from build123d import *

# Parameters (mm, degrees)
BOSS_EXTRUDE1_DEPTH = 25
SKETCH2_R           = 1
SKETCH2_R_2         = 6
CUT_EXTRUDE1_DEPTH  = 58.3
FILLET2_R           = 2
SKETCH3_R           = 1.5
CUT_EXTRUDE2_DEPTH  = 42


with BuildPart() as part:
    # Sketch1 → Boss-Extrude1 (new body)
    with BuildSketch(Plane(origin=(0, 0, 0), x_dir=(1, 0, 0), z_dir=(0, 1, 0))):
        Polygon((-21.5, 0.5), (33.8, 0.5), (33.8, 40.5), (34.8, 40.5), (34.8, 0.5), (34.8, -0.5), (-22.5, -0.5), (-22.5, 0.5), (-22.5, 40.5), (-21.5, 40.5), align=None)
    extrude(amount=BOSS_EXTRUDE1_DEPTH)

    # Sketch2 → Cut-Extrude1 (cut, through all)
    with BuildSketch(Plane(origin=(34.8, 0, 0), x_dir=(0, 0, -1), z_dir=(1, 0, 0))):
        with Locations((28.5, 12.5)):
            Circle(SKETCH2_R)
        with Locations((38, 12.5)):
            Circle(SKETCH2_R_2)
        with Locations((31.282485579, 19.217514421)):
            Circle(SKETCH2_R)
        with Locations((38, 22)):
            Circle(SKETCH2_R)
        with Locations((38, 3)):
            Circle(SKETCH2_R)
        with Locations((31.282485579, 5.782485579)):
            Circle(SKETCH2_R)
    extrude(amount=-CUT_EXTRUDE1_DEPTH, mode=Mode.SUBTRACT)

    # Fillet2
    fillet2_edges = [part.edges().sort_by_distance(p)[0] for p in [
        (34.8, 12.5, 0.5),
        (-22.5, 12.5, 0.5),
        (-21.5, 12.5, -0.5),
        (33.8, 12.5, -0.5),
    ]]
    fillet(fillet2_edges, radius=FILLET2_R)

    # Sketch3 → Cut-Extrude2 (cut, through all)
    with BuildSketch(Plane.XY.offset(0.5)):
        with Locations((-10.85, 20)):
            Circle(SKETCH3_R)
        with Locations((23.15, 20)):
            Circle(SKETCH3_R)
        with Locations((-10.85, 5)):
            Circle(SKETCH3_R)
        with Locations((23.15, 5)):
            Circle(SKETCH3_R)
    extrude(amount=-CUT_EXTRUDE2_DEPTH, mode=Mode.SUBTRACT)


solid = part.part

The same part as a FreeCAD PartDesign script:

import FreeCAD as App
import Part
import Sketcher
Q = App.Units.Quantity


def edges_at(feature, points):
    """Names of the edges that pass closest to the given points."""
    edges = feature.Shape.Edges
    near = lambda p: min(range(len(edges)), key=lambda i: edges[i].distToShape(Part.Vertex(*p))[0])
    return sorted({f"Edge{near(p) + 1}" for p in points})

doc = App.newDocument("Part")
params = doc.addObject("Spreadsheet::Sheet", "Params")
for row, (alias, value) in enumerate([
    ("sketch1_width", "1 mm"),
    ("sketch1_height", "40 mm"),
    ("sketch1_height2", "41 mm"),
    ("sketch1_width2", "55.3 mm"),
    ("pad1_length", "25 mm"),
    ("sketch2_diameter", "2 mm"),
    ("sketch2_diameter2", "12 mm"),
    ("fillet_radius", "2 mm"),
    ("sketch3_diameter", "3 mm"),
], start=1):
    params.set(f"A{row}", alias)
    params.set(f"B{row}", "=" + value)
    params.setAlias(f"B{row}", alias)

body = doc.addObject("PartDesign::Body", "Body")

# Sketch on XZ plane
sketch1 = body.newObject("Sketcher::SketchObject", "Sketch")
sketch1.AttachmentSupport = (doc.getObject("XZ_Plane"), [""])
sketch1.MapMode = "FlatFace"
sketch1.addGeometry(Part.LineSegment(App.Vector(33.8, -0.5, 0), App.Vector(-21.5, -0.5, 0)), False)
sketch1.addGeometry(Part.LineSegment(App.Vector(-21.5, -0.5, 0), App.Vector(-21.5, -40.5, 0)), False)
sketch1.addGeometry(Part.LineSegment(App.Vector(-21.5, -40.5, 0), App.Vector(-22.5, -40.5, 0)), False)
sketch1.addGeometry(Part.LineSegment(App.Vector(-22.5, -40.5, 0), App.Vector(-22.5, 0.5, 0)), False)
sketch1.addGeometry(Part.LineSegment(App.Vector(-22.5, 0.5, 0), App.Vector(34.8, 0.5, 0)), False)
sketch1.addGeometry(Part.LineSegment(App.Vector(34.8, 0.5, 0), App.Vector(34.8, -40.5, 0)), False)
sketch1.addGeometry(Part.LineSegment(App.Vector(34.8, -40.5, 0), App.Vector(33.8, -40.5, 0)), False)
sketch1.addGeometry(Part.LineSegment(App.Vector(33.8, -40.5, 0), App.Vector(33.8, -0.5, 0)), False)
sketch1.addConstraint(Sketcher.Constraint("Coincident", 0, 2, 1, 1))
sketch1.addConstraint(Sketcher.Constraint("Coincident", 1, 2, 2, 1))
sketch1.addConstraint(Sketcher.Constraint("Coincident", 2, 2, 3, 1))
sketch1.addConstraint(Sketcher.Constraint("Coincident", 3, 2, 4, 1))
sketch1.addConstraint(Sketcher.Constraint("Coincident", 4, 2, 5, 1))
sketch1.addConstraint(Sketcher.Constraint("Coincident", 5, 2, 6, 1))
sketch1.addConstraint(Sketcher.Constraint("Coincident", 6, 2, 7, 1))
sketch1.addConstraint(Sketcher.Constraint("Coincident", 7, 2, 0, 1))
sketch1.addConstraint(Sketcher.Constraint("Horizontal", 0))
sketch1.addConstraint(Sketcher.Constraint("Vertical", 1))
sketch1.addConstraint(Sketcher.Constraint("Horizontal", 2))
sketch1.addConstraint(Sketcher.Constraint("Vertical", 3))
sketch1.addConstraint(Sketcher.Constraint("Horizontal", 4))
sketch1.addConstraint(Sketcher.Constraint("Vertical", 5))
sketch1.addConstraint(Sketcher.Constraint("Horizontal", 6))
sketch1.addConstraint(Sketcher.Constraint("Vertical", 7))
sketch1.addConstraint(Sketcher.Constraint("Horizontal", 2, 2, 5, 2))
sketch1.addConstraint(Sketcher.Constraint("Equal", 2, 6))
sketch1.addConstraint(Sketcher.Constraint("DistanceX", 2, 2, 2, 1, Q("1 mm")))
sketch1.addConstraint(Sketcher.Constraint("DistanceY", 1, 2, 1, 1, Q("40 mm")))
sketch1.addConstraint(Sketcher.Constraint("DistanceY", 3, 1, 3, 2, Q("41 mm")))
sketch1.addConstraint(Sketcher.Constraint("DistanceX", 0, 2, 0, 1, Q("55.3 mm")))
sketch1.addConstraint(Sketcher.Constraint("DistanceX", 0, 2, -1, 1, Q("21.5 mm")))
sketch1.addConstraint(Sketcher.Constraint("DistanceY", 0, 2, -1, 1, Q("0.5 mm")))
sketch1.setExpression("Constraints[18]", "Params.sketch1_width")
sketch1.setExpression("Constraints[19]", "Params.sketch1_height")
sketch1.setExpression("Constraints[20]", "Params.sketch1_height2")
sketch1.setExpression("Constraints[21]", "Params.sketch1_width2")
pad1 = body.newObject("PartDesign::Pad", "Pad")
pad1.Profile = sketch1
pad1.setExpression("Length", "Params.pad1_length")
pad1.Reversed = True

# Sketch on YZ plane
sketch2 = body.newObject("Sketcher::SketchObject", "Sketch001")
sketch2.AttachmentSupport = (doc.getObject("YZ_Plane"), [""])
sketch2.MapMode = "FlatFace"
sketch2.AttachmentOffset = App.Placement(App.Vector(0, 0, 34.8), App.Rotation())
sketch2.addGeometry(Part.Circle(App.Vector(12.5, -28.5, 0), App.Vector(0, 0, 1), 1), False)
sketch2.addGeometry(Part.Circle(App.Vector(12.5, -38, 0), App.Vector(0, 0, 1), 6), False)
sketch2.addGeometry(Part.Circle(App.Vector(19.2, -31.3, 0), App.Vector(0, 0, 1), 1), False)
sketch2.addGeometry(Part.Circle(App.Vector(22, -38, 0), App.Vector(0, 0, 1), 1), False)
sketch2.addGeometry(Part.Circle(App.Vector(3, -38, 0), App.Vector(0, 0, 1), 1), False)
sketch2.addGeometry(Part.Circle(App.Vector(5.8, -31.3, 0), App.Vector(0, 0, 1), 1), False)
sketch2.addConstraint(Sketcher.Constraint("Equal", 0, 2))
sketch2.addConstraint(Sketcher.Constraint("Equal", 2, 3))
sketch2.addConstraint(Sketcher.Constraint("Equal", 3, 4))
sketch2.addConstraint(Sketcher.Constraint("Equal", 4, 5))
sketch2.addConstraint(Sketcher.Constraint("Horizontal", 1, 3, 3, 3))
sketch2.addConstraint(Sketcher.Constraint("Horizontal", 3, 3, 4, 3))
sketch2.addConstraint(Sketcher.Constraint("Horizontal", 2, 3, 5, 3))
sketch2.addConstraint(Sketcher.Constraint("Vertical", 0, 3, 1, 3))
sketch2.addConstraint(Sketcher.Constraint("Diameter", 0, Q("2 mm")))
sketch2.addConstraint(Sketcher.Constraint("Diameter", 1, Q("12 mm")))
sketch2.addConstraint(Sketcher.Constraint("DistanceY", 1, 3, -1, 1, Q("38 mm")))
sketch2.addConstraint(Sketcher.Constraint("DistanceX", -1, 1, 3, 3, Q("22 mm")))
sketch2.addConstraint(Sketcher.Constraint("DistanceX", -1, 1, 4, 3, Q("3 mm")))
sketch2.addConstraint(Sketcher.Constraint("DistanceX", -1, 1, 0, 3, Q("12.5 mm")))
sketch2.addConstraint(Sketcher.Constraint("DistanceY", 0, 3, -1, 1, Q("28.5 mm")))
sketch2.addConstraint(Sketcher.Constraint("DistanceX", 5, 3, 2, 3, Q("13.435029 mm")))
sketch2.addConstraint(Sketcher.Constraint("DistanceX", -1, 1, 2, 3, Q("19.217514 mm")))
sketch2.addConstraint(Sketcher.Constraint("DistanceY", 2, 3, -1, 1, Q("31.282486 mm")))
sketch2.setExpression("Constraints[8]", "Params.sketch2_diameter")
sketch2.setExpression("Constraints[9]", "Params.sketch2_diameter2")
pocket1 = body.newObject("PartDesign::Pocket", "Pocket")
pocket1.Profile = sketch2
pocket1.Type = "ThroughAll"
doc.recompute()

fillet = body.newObject("PartDesign::Fillet", "Fillet")
fillet.Base = (pocket1, edges_at(pocket1, [
    (34.8, 12.5, 0.5),
    (-22.5, 12.5, 0.5),
    (-21.5, 12.5, -0.5),
    (33.8, 12.5, -0.5),
]))
fillet.setExpression("Radius", "Params.fillet_radius")

# Sketch on XY plane
sketch3 = body.newObject("Sketcher::SketchObject", "Sketch002")
sketch3.AttachmentSupport = (doc.getObject("XY_Plane"), [""])
sketch3.MapMode = "FlatFace"
sketch3.AttachmentOffset = App.Placement(App.Vector(0, 0, 0.5), App.Rotation())
sketch3.addGeometry(Part.Circle(App.Vector(-10.8, 20, 0), App.Vector(0, 0, 1), 1.5), False)
sketch3.addGeometry(Part.Circle(App.Vector(23.1, 20, 0), App.Vector(0, 0, 1), 1.5), False)
sketch3.addGeometry(Part.Circle(App.Vector(-10.8, 5, 0), App.Vector(0, 0, 1), 1.5), False)
sketch3.addGeometry(Part.Circle(App.Vector(23.1, 5, 0), App.Vector(0, 0, 1), 1.5), False)
sketch3.addConstraint(Sketcher.Constraint("Equal", 0, 1))
sketch3.addConstraint(Sketcher.Constraint("Equal", 1, 2))
sketch3.addConstraint(Sketcher.Constraint("Equal", 2, 3))
sketch3.addConstraint(Sketcher.Constraint("Horizontal", 0, 3, 1, 3))
sketch3.addConstraint(Sketcher.Constraint("Horizontal", 2, 3, 3, 3))
sketch3.addConstraint(Sketcher.Constraint("Vertical", 0, 3, 2, 3))
sketch3.addConstraint(Sketcher.Constraint("Vertical", 1, 3, 3, 3))
sketch3.addConstraint(Sketcher.Constraint("Diameter", 0, Q("3 mm")))
sketch3.addConstraint(Sketcher.Constraint("DistanceY", -1, 1, 0, 3, Q("20 mm")))
sketch3.addConstraint(Sketcher.Constraint("DistanceY", -1, 1, 2, 3, Q("5 mm")))
sketch3.addConstraint(Sketcher.Constraint("DistanceX", 0, 3, 1, 3, Q("34 mm")))
sketch3.addConstraint(Sketcher.Constraint("DistanceX", 0, 3, -1, 1, Q("10.85 mm")))
sketch3.setExpression("Constraints[7]", "Params.sketch3_diameter")
pocket2 = body.newObject("PartDesign::Pocket", "Pocket001")
pocket2.Profile = sketch3
pocket2.Type = "ThroughAll"

doc.recompute()
